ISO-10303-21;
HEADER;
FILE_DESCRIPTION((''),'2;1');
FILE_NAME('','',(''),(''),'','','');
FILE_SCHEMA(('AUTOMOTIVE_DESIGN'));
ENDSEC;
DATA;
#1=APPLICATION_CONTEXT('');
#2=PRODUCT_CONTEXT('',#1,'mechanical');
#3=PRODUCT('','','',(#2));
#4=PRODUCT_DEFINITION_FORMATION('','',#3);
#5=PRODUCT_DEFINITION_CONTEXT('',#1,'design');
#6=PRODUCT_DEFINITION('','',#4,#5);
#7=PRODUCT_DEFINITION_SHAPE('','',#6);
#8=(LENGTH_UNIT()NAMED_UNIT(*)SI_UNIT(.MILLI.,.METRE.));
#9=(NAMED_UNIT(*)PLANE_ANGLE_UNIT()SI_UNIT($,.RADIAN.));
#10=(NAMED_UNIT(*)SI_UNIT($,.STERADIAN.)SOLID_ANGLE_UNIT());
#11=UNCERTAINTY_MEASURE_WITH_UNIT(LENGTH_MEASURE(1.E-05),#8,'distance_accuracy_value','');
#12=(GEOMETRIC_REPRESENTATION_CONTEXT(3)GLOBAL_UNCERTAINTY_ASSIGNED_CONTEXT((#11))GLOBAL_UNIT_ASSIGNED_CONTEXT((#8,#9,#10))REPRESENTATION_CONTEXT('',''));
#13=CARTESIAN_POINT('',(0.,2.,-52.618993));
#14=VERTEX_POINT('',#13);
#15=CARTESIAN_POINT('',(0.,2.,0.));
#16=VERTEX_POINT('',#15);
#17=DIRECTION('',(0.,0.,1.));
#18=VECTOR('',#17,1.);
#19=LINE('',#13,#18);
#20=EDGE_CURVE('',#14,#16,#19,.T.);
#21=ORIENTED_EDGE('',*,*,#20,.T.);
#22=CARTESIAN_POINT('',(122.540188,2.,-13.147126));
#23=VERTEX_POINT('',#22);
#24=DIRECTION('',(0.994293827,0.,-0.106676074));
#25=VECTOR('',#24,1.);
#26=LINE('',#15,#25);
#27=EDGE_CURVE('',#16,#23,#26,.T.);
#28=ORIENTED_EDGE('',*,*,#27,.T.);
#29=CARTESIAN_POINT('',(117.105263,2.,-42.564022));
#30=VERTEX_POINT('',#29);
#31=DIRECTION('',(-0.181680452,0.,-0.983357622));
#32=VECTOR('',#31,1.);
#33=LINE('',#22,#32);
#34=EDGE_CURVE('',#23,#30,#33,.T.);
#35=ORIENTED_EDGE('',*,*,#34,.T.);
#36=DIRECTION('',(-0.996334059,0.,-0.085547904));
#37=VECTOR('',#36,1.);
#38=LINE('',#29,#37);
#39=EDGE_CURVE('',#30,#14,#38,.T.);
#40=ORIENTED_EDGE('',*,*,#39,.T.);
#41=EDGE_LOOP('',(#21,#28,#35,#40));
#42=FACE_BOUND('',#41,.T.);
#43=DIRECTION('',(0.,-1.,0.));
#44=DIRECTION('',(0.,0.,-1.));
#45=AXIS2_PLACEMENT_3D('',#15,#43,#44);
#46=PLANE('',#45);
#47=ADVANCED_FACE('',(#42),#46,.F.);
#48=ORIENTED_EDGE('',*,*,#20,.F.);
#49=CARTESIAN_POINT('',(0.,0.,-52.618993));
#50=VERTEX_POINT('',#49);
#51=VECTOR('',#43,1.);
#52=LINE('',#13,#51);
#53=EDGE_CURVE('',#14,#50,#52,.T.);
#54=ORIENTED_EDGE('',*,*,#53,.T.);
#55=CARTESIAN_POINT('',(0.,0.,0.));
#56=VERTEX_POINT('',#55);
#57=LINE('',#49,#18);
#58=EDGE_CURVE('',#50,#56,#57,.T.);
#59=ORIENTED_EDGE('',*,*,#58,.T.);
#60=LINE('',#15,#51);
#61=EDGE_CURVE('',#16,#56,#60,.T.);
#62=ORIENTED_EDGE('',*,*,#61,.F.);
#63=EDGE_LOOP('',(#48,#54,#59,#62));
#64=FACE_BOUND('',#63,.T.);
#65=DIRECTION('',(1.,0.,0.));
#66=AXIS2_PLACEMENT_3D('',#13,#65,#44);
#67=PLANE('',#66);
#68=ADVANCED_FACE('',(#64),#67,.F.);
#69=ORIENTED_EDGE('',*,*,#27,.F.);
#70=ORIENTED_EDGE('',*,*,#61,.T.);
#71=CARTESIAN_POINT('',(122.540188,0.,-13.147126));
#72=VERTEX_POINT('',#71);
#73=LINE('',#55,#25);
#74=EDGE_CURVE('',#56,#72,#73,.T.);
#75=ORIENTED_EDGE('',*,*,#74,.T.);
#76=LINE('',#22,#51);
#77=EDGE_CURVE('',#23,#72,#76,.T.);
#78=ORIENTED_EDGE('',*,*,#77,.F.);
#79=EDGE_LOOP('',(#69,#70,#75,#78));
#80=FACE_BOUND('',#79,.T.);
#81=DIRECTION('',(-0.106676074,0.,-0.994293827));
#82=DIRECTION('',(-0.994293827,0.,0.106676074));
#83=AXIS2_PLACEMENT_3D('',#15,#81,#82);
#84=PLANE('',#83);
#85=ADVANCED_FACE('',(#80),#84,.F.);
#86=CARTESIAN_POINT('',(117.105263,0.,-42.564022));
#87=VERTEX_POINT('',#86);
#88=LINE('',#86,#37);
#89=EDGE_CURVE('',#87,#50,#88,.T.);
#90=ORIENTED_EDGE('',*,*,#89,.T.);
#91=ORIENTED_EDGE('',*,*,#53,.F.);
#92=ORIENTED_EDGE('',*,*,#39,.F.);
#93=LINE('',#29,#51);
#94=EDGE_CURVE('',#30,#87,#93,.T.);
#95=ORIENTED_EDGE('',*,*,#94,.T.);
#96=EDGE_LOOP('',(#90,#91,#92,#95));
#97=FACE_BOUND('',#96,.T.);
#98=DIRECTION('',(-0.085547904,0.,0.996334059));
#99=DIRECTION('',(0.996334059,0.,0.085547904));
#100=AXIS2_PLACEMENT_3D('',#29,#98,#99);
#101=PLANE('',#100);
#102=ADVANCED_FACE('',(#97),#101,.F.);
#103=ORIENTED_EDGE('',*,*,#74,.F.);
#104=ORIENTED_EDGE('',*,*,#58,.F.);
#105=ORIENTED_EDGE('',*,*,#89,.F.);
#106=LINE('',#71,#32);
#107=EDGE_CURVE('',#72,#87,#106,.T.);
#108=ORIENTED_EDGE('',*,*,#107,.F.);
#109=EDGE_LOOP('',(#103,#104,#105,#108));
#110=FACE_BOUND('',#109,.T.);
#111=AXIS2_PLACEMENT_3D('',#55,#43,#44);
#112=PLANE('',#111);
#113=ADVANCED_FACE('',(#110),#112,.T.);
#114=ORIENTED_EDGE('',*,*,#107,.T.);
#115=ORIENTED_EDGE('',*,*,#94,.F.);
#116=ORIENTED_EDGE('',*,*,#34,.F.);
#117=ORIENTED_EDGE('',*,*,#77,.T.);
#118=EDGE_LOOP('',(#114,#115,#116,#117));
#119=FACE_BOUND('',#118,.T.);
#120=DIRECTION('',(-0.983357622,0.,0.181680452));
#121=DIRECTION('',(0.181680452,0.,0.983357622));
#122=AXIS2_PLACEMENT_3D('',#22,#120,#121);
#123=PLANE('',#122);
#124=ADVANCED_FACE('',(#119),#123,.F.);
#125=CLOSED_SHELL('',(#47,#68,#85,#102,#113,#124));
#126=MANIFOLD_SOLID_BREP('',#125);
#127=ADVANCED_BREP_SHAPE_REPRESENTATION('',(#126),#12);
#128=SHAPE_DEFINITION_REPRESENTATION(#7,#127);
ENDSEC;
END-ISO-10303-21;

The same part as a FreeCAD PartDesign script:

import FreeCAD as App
import Part
import Sketcher

V = App.Vector
Q = App.Units.Quantity

doc = App.newDocument("Part")
body = doc.addObject("PartDesign::Body", "Body")

# Sketch on XZ plane
sketch1 = body.newObject("Sketcher::SketchObject", "Sketch")
sketch1.AttachmentSupport = (doc.getObject("XZ_Plane"), [""])
sketch1.MapMode = "FlatFace"
sketch1.addGeometry(Part.LineSegment(V(117, -43, 0), V(0, -53, 0)), False)
sketch1.addGeometry(Part.LineSegment(V(0, -53, 0), V(0, 0, 0)), False)
sketch1.addGeometry(Part.LineSegment(V(0, 0, 0), V(123, -13, 0)), False)
sketch1.addGeometry(Part.LineSegment(V(123, -13, 0), V(117, -43, 0)), False)
sketch1.addConstraint(Sketcher.Constraint("Coincident", 0, 2, 1, 1))
sketch1.addConstraint(Sketcher.Constraint("Coincident", 1, 2, 2, 1))
sketch1.addConstraint(Sketcher.Constraint("Coincident", 2, 2, 3, 1))
sketch1.addConstraint(Sketcher.Constraint("Coincident", 3, 2, 0, 1))
sketch1.addConstraint(Sketcher.Constraint("Vertical", 1))
sketch1.addConstraint(Sketcher.Constraint("Coincident", 1, 2, -1, 1))
sketch1.addConstraint(Sketcher.Constraint("Distance", 3, Q("29.914749 mm")))
sketch1.addConstraint(Sketcher.Constraint("DistanceY", 1, 1, 1, 2, Q("52.618993 mm")))
sketch1.addConstraint(Sketcher.Constraint("DistanceX", -1, 1, 2, 2, Q("122.540188 mm")))
sketch1.addConstraint(Sketcher.Constraint("DistanceY", 0, 2, 3, 2, Q("10.054971 mm")))
sketch1.addConstraint(Sketcher.Constraint("Distance", 0, Q("117.536144 mm")))
pad1 = body.newObject("PartDesign::Pad", "Pad")
pad1.Profile = sketch1
pad1.Length = 2
pad1.Reversed = True

doc.recompute()
